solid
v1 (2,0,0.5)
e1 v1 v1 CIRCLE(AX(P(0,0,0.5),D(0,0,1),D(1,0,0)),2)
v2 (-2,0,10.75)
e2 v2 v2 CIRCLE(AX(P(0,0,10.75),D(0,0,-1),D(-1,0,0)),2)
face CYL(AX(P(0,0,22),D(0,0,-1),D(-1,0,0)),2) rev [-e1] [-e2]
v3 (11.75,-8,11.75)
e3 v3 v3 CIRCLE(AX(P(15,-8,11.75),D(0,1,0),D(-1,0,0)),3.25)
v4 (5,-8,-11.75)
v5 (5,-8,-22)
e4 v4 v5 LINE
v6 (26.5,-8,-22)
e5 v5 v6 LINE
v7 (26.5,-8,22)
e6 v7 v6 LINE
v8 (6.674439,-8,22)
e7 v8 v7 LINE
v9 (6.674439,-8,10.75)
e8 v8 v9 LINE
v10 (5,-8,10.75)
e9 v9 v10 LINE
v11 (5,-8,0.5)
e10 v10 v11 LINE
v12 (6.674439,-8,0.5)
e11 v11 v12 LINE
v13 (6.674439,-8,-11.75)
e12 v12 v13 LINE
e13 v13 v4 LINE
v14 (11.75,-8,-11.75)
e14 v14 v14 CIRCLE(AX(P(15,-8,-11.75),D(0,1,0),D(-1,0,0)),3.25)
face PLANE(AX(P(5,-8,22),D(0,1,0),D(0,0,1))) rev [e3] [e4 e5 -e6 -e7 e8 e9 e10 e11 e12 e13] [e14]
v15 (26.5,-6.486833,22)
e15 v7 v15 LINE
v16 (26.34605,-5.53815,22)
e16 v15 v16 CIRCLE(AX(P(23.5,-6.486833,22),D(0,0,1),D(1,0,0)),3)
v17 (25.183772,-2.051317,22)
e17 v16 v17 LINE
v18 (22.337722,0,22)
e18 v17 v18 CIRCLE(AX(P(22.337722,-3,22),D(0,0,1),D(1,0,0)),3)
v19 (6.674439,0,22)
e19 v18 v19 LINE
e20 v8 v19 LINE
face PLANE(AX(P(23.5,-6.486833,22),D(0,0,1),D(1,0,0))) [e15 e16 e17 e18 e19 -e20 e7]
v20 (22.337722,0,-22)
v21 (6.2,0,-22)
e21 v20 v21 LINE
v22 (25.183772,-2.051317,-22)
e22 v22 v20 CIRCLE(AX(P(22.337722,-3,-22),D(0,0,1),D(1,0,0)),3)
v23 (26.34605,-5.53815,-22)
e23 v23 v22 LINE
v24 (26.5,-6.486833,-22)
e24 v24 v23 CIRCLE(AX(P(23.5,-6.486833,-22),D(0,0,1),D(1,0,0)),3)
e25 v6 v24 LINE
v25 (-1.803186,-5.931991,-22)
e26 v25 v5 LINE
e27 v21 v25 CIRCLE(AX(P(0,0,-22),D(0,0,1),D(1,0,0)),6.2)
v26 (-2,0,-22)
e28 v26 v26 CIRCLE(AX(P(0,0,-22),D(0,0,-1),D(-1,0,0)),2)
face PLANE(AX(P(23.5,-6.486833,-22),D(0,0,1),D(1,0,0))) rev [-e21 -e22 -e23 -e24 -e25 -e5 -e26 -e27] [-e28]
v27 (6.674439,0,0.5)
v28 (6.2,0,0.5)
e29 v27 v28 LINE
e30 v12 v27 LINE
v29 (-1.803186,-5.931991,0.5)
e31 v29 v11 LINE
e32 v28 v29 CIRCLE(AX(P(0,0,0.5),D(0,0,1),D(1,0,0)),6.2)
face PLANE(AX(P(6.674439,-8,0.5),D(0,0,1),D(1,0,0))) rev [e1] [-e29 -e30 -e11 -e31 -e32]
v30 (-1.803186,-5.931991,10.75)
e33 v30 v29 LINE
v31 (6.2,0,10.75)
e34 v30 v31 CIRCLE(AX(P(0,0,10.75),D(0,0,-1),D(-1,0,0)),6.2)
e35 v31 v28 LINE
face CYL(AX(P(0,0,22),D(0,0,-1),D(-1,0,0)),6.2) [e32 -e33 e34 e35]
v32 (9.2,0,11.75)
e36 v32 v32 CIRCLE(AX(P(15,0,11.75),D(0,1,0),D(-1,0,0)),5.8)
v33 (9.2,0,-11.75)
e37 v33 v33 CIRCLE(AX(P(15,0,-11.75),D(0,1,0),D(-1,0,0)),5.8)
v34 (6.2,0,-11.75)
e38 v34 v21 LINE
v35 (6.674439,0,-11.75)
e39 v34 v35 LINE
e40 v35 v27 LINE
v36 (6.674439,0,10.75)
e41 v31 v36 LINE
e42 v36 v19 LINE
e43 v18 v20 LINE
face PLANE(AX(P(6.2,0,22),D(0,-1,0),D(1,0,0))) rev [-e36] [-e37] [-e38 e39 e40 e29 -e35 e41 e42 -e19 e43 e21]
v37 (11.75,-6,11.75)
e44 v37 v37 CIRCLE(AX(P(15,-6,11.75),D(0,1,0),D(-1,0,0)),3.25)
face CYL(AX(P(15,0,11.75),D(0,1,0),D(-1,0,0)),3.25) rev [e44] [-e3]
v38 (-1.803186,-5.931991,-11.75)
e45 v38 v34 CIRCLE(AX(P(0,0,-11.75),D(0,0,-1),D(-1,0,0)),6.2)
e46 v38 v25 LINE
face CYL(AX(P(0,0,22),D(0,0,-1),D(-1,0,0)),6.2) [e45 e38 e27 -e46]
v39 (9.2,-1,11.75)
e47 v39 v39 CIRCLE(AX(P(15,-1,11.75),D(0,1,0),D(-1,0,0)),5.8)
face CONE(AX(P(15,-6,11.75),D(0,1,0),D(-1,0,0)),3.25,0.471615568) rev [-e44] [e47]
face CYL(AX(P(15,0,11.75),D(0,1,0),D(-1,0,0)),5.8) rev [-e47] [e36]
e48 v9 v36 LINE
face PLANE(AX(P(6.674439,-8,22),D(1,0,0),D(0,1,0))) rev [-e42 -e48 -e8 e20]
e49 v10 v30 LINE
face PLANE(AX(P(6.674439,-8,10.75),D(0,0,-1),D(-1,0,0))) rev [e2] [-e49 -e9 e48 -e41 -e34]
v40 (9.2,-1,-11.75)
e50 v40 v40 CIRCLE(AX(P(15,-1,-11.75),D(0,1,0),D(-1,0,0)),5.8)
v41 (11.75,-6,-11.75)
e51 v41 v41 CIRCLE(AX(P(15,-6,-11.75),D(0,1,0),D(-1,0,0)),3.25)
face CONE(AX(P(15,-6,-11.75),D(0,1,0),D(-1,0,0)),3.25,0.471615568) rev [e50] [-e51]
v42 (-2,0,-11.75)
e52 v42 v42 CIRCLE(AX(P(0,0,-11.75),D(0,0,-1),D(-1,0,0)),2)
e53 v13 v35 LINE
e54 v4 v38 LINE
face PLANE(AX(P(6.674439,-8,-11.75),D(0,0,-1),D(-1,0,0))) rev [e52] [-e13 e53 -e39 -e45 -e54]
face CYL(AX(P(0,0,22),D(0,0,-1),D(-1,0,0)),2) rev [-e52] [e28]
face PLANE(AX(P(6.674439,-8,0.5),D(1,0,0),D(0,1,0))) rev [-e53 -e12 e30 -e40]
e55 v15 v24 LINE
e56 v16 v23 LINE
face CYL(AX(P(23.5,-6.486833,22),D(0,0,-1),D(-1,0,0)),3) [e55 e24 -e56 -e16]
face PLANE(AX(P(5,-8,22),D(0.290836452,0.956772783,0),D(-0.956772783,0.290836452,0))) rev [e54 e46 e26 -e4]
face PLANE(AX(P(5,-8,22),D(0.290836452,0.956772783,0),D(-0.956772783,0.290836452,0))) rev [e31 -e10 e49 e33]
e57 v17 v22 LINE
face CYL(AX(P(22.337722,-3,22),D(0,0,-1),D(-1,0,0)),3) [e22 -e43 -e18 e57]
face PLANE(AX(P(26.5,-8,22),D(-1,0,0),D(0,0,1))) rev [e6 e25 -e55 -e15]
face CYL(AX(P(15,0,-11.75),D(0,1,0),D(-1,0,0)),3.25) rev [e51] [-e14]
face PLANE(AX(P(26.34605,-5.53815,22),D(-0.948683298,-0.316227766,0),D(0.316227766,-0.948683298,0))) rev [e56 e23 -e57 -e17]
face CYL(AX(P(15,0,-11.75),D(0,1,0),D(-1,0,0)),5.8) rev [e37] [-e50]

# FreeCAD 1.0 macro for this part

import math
import FreeCAD as App
import Part
import Sketcher

V = App.Vector

doc = App.newDocument("Part")
body = doc.addObject("PartDesign::Body", "Body")

# Sketch on XY plane
sketch1 = body.newObject("Sketcher::SketchObject", "Sketch")
sketch1.AttachmentSupport = (doc.getObject("XY_Plane"), [""])
sketch1.MapMode = "FlatFace"
sketch1.addGeometry(Part.LineSegment(V(26.5, -8, 0), V(26.5, -6.5, 0)), False)
sketch1.addGeometry(Part.ArcOfCircle(Part.Circle(V(23.5, -6.5, 0), V(0, 0, 1), 3), math.radians(0), math.radians(18.43)), False)
sketch1.addGeometry(Part.LineSegment(V(26.3, -5.5, 0), V(25.2, -2.1, 0)), False)
sketch1.addGeometry(Part.ArcOfCircle(Part.Circle(V(22.3, -3, 0), V(0, 0, 1), 3), math.radians(18), math.radians(90)), False)
sketch1.addGeometry(Part.LineSegment(V(22.3, 0, 0), V(6.2, 0, 0)), False)
sketch1.addGeometry(Part.ArcOfCircle(Part.Circle(V(0, 0, 0), V(0, 0, 1), 6.2), math.radians(0), math.radians(253)), False)
sketch1.addGeometry(Part.LineSegment(V(-1.8, -5.9, 0), V(5, -8, 0)), False)
sketch1.addGeometry(Part.LineSegment(V(5, -8, 0), V(26.5, -8, 0)), False)
sketch1.addConstraint(Sketcher.Constraint("Tangent", 0, 2, 1, 1))
sketch1.addConstraint(Sketcher.Constraint("Tangent", 1, 2, 2, 1))
sketch1.addConstraint(Sketcher.Constraint("Tangent", 2, 2, 3, 1))
sketch1.addConstraint(Sketcher.Constraint("Tangent", 3, 2, 4, 1))
sketch1.addConstraint(Sketcher.Constraint("Coincident", 4, 2, 5, 1))
sketch1.addConstraint(Sketcher.Constraint("Tangent", 5, 2, 6, 1))
sketch1.addConstraint(Sketcher.Constraint("Coincident", 6, 2, 7, 1))
sketch1.addConstraint(Sketcher.Constraint("Coincident", 7, 2, 0, 1))
sketch1.addConstraint(Sketcher.Constraint("Vertical", 0))
sketch1.addConstraint(Sketcher.Constraint("Horizontal", 4))
sketch1.addConstraint(Sketcher.Constraint("Horizontal", 7))
sketch1.addConstraint(Sketcher.Constraint("Coincident", 5, 3, -1, 1))
sketch1.addConstraint(Sketcher.Constraint("Equal", 1, 3))
sketch1.addConstraint(Sketcher.Constraint("PointOnObject", 3, 2, -1))
sketch1.addConstraint(Sketcher.Constraint("Radius", 1, 3.0))
sketch1.addConstraint(Sketcher.Constraint("Radius", 5, 6.2))
sketch1.addConstraint(Sketcher.Constraint("DistanceX", 7, 1, 7, 2, 21.5))
sketch1.addConstraint(Sketcher.Constraint("DistanceX", -1, 1, 6, 2, 5.0))
sketch1.addConstraint(Sketcher.Constraint("DistanceY", 6, 2, -1, 1, 8.0))
sketch1.addConstraint(Sketcher.Constraint("DistanceX", 4, 2, 4, 1, 16.137722))
sketch1.addConstraint(Sketcher.Constraint("DistanceY", 0, 1, 0, 2, 1.513167))
pad1 = body.newObject("PartDesign::Pad", "Pad")
pad1.Profile = sketch1
pad1.Length = 44
pad1.Midplane = True

# Sketch on XZ plane
sketch2 = body.newObject("Sketcher::SketchObject", "Sketch001")
sketch2.AttachmentSupport = (doc.getObject("XZ_Plane"), [""])
sketch2.MapMode = "FlatFace"
sketch2.addGeometry(Part.LineSegment(V(-9, 11, 0), V(-9, 22, 0)), False)
sketch2.addGeometry(Part.LineSegment(V(-9, 22, 0), V(7, 22, 0)), False)
sketch2.addGeometry(Part.LineSegment(V(7, 22, 0), V(7, 11, 0)), False)
sketch2.addGeometry(Part.LineSegment(V(7, 11, 0), V(-9, 11, 0)), False)
sketch2.addGeometry(Part.LineSegment(V(-10, -12, 0), V(-10, 0, 0)), False)
sketch2.addGeometry(Part.LineSegment(V(-10, 0, 0), V(7, 0, 0)), False)
sketch2.addGeometry(Part.LineSegment(V(7, 0, 0), V(7, -12, 0)), False)
sketch2.addGeometry(Part.LineSegment(V(7, -12, 0), V(-10, -12, 0)), False)
sketch2.addConstraint(Sketcher.Constraint("Coincident", 0, 2, 1, 1))
sketch2.addConstraint(Sketcher.Constraint("Coincident", 1, 2, 2, 1))
sketch2.addConstraint(Sketcher.Constraint("Coincident", 2, 2, 3, 1))
sketch2.addConstraint(Sketcher.Constraint("Coincident", 3, 2, 0, 1))
sketch2.addConstraint(Sketcher.Constraint("Coincident", 4, 2, 5, 1))
sketch2.addConstraint(Sketcher.Constraint("Coincident", 5, 2, 6, 1))
sketch2.addConstraint(Sketcher.Constraint("Coincident", 6, 2, 7, 1))
sketch2.addConstraint(Sketcher.Constraint("Coincident", 7, 2, 4, 1))
sketch2.addConstraint(Sketcher.Constraint("Vertical", 0))
sketch2.addConstraint(Sketcher.Constraint("Horizontal", 1))
sketch2.addConstraint(Sketcher.Constraint("Vertical", 2))
sketch2.addConstraint(Sketcher.Constraint("Horizontal", 3))
sketch2.addConstraint(Sketcher.Constraint("Vertical", 4))
sketch2.addConstraint(Sketcher.Constraint("Horizontal", 5))
sketch2.addConstraint(Sketcher.Constraint("Vertical", 6))
sketch2.addConstraint(Sketcher.Constraint("Horizontal", 7))
sketch2.addConstraint(Sketcher.Constraint("Vertical", 2, 2, 5, 2))
sketch2.addConstraint(Sketcher.Constraint("DistanceY", -1, 1, 0, 2, 22.0))
sketch2.addConstraint(Sketcher.Constraint("DistanceY", 0, 1, 0, 2, 11.25))
sketch2.addConstraint(Sketcher.Constraint("DistanceY", 4, 1, 4, 2, 12.25))
sketch2.addConstraint(Sketcher.Constraint("DistanceY", -1, 1, 4, 2, 0.5))
sketch2.addConstraint(Sketcher.Constraint("DistanceX", 5, 1, 5, 2, 17.01047))
sketch2.addConstraint(Sketcher.Constraint("DistanceX", 1, 1, 1, 2, 15.710666))
sketch2.addConstraint(Sketcher.Constraint("DistanceX", -1, 1, 1, 2, 6.674439))
pocket1 = body.newObject("PartDesign::Pocket", "Pocket")
pocket1.Profile = sketch2
pocket1.Type = "ThroughAll"
pocket1.Midplane = True

# Sketch on XY plane
sketch3 = body.newObject("Sketcher::SketchObject", "Sketch002")
sketch3.AttachmentSupport = (doc.getObject("XY_Plane"), [""])
sketch3.MapMode = "FlatFace"
sketch3.AttachmentOffset = App.Placement(V(0, 0, -22), App.Rotation())
sketch3.addGeometry(Part.Circle(V(0, 0, 0), V(0, 0, 1), 2), False)
sketch3.addConstraint(Sketcher.Constraint("Coincident", 0, 3, -1, 1))
sketch3.addConstraint(Sketcher.Constraint("Diameter", 0, 4.0))
pocket2 = body.newObject("PartDesign::Pocket", "Pocket001")
pocket2.Profile = sketch3
pocket2.Type = "ThroughAll"
pocket2.Reversed = True

# Sketch on XY plane
sketch4 = body.newObject("Sketcher::SketchObject", "Sketch003")
sketch4.AttachmentSupport = (doc.getObject("XY_Plane"), [""])
sketch4.MapMode = "FlatFace"
sketch4.AttachmentOffset = App.Placement(V(0, 0, -11.75), App.Rotation())
sketch4.addGeometry(Part.LineSegment(V(15, 0, 0), V(15, -8, 0)), False)
sketch4.addGeometry(Part.LineSegment(V(15, -8, 0), V(11.8, -8, 0)), False)
sketch4.addGeometry(Part.LineSegment(V(11.8, -8, 0), V(11.8, -6, 0)), False)
sketch4.addGeometry(Part.LineSegment(V(11.8, -6, 0), V(9.2, -1, 0)), False)
sketch4.addGeometry(Part.LineSegment(V(9.2, -1, 0), V(9.2, 0, 0)), False)
sketch4.addGeometry(Part.LineSegment(V(9.2, 0, 0), V(15, 0, 0)), False)
sketch4.addGeometry(Part.LineSegment(V(15, 0, 0), V(15, -8, 0)), True)  # axis
sketch4.addConstraint(Sketcher.Constraint("Coincident", 0, 2, 1, 1))
sketch4.addConstraint(Sketcher.Constraint("Coincident", 1, 2, 2, 1))
sketch4.addConstraint(Sketcher.Constraint("Coincident", 2, 2, 3, 1))
sketch4.addConstraint(Sketcher.Constraint("Coincident", 3, 2, 4, 1))
sketch4.addConstraint(Sketcher.Constraint("Coincident", 4, 2, 5, 1))
sketch4.addConstraint(Sketcher.Constraint("Coincident", 5, 2, 0, 1))
sketch4.addConstraint(Sketcher.Constraint("Vertical", 0))
sketch4.addConstraint(Sketcher.Constraint("Horizontal", 1))
sketch4.addConstraint(Sketcher.Constraint("Vertical", 2))
sketch4.addConstraint(Sketcher.Constraint("Vertical", 4))
sketch4.addConstraint(Sketcher.Constraint("Horizontal", 5))
sketch4.addConstraint(Sketcher.Constraint("Vertical", 6))
sketch4.addConstraint(Sketcher.Constraint("Coincident", 6, 1, 5, 2))
sketch4.addConstraint(Sketcher.Constraint("PointOnObject", 4, 2, -1))
sketch4.addConstraint(Sketcher.Constraint("Horizontal", 1, 2, 6, 2))
sketch4.addConstraint(Sketcher.Constraint("DistanceY", 0, 2, 0, 1, 8.0))
sketch4.addConstraint(Sketcher.Constraint("DistanceY", 2, 1, 2, 2, 2.0))
sketch4.addConstraint(Sketcher.Constraint("DistanceY", 4, 1, 4, 2, 1.0))
sketch4.addConstraint(Sketcher.Constraint("DistanceX", 5, 1, 5, 2, 5.8))
sketch4.addConstraint(Sketcher.Constraint("DistanceX", -1, 1, 0, 2, 15.0))
sketch4.addConstraint(Sketcher.Constraint("DistanceX", 1, 2, 1, 1, 3.25))
groove = body.newObject("PartDesign::Groove", "Groove")
groove.Profile = sketch4
groove.ReferenceAxis = (sketch4, ["Axis0"])
groove.Angle = 360
doc.recompute()

linearpattern = body.newObject("PartDesign::LinearPattern", "LinearPattern")
linearpattern.Originals = [groove]
linearpattern.Direction = (doc.getObject("Z_Axis"), [""])
linearpattern.Mode = "offset"
linearpattern.Offset = 23.5
linearpattern.Occurrences = 2
body.Tip = linearpattern

doc.recompute()
